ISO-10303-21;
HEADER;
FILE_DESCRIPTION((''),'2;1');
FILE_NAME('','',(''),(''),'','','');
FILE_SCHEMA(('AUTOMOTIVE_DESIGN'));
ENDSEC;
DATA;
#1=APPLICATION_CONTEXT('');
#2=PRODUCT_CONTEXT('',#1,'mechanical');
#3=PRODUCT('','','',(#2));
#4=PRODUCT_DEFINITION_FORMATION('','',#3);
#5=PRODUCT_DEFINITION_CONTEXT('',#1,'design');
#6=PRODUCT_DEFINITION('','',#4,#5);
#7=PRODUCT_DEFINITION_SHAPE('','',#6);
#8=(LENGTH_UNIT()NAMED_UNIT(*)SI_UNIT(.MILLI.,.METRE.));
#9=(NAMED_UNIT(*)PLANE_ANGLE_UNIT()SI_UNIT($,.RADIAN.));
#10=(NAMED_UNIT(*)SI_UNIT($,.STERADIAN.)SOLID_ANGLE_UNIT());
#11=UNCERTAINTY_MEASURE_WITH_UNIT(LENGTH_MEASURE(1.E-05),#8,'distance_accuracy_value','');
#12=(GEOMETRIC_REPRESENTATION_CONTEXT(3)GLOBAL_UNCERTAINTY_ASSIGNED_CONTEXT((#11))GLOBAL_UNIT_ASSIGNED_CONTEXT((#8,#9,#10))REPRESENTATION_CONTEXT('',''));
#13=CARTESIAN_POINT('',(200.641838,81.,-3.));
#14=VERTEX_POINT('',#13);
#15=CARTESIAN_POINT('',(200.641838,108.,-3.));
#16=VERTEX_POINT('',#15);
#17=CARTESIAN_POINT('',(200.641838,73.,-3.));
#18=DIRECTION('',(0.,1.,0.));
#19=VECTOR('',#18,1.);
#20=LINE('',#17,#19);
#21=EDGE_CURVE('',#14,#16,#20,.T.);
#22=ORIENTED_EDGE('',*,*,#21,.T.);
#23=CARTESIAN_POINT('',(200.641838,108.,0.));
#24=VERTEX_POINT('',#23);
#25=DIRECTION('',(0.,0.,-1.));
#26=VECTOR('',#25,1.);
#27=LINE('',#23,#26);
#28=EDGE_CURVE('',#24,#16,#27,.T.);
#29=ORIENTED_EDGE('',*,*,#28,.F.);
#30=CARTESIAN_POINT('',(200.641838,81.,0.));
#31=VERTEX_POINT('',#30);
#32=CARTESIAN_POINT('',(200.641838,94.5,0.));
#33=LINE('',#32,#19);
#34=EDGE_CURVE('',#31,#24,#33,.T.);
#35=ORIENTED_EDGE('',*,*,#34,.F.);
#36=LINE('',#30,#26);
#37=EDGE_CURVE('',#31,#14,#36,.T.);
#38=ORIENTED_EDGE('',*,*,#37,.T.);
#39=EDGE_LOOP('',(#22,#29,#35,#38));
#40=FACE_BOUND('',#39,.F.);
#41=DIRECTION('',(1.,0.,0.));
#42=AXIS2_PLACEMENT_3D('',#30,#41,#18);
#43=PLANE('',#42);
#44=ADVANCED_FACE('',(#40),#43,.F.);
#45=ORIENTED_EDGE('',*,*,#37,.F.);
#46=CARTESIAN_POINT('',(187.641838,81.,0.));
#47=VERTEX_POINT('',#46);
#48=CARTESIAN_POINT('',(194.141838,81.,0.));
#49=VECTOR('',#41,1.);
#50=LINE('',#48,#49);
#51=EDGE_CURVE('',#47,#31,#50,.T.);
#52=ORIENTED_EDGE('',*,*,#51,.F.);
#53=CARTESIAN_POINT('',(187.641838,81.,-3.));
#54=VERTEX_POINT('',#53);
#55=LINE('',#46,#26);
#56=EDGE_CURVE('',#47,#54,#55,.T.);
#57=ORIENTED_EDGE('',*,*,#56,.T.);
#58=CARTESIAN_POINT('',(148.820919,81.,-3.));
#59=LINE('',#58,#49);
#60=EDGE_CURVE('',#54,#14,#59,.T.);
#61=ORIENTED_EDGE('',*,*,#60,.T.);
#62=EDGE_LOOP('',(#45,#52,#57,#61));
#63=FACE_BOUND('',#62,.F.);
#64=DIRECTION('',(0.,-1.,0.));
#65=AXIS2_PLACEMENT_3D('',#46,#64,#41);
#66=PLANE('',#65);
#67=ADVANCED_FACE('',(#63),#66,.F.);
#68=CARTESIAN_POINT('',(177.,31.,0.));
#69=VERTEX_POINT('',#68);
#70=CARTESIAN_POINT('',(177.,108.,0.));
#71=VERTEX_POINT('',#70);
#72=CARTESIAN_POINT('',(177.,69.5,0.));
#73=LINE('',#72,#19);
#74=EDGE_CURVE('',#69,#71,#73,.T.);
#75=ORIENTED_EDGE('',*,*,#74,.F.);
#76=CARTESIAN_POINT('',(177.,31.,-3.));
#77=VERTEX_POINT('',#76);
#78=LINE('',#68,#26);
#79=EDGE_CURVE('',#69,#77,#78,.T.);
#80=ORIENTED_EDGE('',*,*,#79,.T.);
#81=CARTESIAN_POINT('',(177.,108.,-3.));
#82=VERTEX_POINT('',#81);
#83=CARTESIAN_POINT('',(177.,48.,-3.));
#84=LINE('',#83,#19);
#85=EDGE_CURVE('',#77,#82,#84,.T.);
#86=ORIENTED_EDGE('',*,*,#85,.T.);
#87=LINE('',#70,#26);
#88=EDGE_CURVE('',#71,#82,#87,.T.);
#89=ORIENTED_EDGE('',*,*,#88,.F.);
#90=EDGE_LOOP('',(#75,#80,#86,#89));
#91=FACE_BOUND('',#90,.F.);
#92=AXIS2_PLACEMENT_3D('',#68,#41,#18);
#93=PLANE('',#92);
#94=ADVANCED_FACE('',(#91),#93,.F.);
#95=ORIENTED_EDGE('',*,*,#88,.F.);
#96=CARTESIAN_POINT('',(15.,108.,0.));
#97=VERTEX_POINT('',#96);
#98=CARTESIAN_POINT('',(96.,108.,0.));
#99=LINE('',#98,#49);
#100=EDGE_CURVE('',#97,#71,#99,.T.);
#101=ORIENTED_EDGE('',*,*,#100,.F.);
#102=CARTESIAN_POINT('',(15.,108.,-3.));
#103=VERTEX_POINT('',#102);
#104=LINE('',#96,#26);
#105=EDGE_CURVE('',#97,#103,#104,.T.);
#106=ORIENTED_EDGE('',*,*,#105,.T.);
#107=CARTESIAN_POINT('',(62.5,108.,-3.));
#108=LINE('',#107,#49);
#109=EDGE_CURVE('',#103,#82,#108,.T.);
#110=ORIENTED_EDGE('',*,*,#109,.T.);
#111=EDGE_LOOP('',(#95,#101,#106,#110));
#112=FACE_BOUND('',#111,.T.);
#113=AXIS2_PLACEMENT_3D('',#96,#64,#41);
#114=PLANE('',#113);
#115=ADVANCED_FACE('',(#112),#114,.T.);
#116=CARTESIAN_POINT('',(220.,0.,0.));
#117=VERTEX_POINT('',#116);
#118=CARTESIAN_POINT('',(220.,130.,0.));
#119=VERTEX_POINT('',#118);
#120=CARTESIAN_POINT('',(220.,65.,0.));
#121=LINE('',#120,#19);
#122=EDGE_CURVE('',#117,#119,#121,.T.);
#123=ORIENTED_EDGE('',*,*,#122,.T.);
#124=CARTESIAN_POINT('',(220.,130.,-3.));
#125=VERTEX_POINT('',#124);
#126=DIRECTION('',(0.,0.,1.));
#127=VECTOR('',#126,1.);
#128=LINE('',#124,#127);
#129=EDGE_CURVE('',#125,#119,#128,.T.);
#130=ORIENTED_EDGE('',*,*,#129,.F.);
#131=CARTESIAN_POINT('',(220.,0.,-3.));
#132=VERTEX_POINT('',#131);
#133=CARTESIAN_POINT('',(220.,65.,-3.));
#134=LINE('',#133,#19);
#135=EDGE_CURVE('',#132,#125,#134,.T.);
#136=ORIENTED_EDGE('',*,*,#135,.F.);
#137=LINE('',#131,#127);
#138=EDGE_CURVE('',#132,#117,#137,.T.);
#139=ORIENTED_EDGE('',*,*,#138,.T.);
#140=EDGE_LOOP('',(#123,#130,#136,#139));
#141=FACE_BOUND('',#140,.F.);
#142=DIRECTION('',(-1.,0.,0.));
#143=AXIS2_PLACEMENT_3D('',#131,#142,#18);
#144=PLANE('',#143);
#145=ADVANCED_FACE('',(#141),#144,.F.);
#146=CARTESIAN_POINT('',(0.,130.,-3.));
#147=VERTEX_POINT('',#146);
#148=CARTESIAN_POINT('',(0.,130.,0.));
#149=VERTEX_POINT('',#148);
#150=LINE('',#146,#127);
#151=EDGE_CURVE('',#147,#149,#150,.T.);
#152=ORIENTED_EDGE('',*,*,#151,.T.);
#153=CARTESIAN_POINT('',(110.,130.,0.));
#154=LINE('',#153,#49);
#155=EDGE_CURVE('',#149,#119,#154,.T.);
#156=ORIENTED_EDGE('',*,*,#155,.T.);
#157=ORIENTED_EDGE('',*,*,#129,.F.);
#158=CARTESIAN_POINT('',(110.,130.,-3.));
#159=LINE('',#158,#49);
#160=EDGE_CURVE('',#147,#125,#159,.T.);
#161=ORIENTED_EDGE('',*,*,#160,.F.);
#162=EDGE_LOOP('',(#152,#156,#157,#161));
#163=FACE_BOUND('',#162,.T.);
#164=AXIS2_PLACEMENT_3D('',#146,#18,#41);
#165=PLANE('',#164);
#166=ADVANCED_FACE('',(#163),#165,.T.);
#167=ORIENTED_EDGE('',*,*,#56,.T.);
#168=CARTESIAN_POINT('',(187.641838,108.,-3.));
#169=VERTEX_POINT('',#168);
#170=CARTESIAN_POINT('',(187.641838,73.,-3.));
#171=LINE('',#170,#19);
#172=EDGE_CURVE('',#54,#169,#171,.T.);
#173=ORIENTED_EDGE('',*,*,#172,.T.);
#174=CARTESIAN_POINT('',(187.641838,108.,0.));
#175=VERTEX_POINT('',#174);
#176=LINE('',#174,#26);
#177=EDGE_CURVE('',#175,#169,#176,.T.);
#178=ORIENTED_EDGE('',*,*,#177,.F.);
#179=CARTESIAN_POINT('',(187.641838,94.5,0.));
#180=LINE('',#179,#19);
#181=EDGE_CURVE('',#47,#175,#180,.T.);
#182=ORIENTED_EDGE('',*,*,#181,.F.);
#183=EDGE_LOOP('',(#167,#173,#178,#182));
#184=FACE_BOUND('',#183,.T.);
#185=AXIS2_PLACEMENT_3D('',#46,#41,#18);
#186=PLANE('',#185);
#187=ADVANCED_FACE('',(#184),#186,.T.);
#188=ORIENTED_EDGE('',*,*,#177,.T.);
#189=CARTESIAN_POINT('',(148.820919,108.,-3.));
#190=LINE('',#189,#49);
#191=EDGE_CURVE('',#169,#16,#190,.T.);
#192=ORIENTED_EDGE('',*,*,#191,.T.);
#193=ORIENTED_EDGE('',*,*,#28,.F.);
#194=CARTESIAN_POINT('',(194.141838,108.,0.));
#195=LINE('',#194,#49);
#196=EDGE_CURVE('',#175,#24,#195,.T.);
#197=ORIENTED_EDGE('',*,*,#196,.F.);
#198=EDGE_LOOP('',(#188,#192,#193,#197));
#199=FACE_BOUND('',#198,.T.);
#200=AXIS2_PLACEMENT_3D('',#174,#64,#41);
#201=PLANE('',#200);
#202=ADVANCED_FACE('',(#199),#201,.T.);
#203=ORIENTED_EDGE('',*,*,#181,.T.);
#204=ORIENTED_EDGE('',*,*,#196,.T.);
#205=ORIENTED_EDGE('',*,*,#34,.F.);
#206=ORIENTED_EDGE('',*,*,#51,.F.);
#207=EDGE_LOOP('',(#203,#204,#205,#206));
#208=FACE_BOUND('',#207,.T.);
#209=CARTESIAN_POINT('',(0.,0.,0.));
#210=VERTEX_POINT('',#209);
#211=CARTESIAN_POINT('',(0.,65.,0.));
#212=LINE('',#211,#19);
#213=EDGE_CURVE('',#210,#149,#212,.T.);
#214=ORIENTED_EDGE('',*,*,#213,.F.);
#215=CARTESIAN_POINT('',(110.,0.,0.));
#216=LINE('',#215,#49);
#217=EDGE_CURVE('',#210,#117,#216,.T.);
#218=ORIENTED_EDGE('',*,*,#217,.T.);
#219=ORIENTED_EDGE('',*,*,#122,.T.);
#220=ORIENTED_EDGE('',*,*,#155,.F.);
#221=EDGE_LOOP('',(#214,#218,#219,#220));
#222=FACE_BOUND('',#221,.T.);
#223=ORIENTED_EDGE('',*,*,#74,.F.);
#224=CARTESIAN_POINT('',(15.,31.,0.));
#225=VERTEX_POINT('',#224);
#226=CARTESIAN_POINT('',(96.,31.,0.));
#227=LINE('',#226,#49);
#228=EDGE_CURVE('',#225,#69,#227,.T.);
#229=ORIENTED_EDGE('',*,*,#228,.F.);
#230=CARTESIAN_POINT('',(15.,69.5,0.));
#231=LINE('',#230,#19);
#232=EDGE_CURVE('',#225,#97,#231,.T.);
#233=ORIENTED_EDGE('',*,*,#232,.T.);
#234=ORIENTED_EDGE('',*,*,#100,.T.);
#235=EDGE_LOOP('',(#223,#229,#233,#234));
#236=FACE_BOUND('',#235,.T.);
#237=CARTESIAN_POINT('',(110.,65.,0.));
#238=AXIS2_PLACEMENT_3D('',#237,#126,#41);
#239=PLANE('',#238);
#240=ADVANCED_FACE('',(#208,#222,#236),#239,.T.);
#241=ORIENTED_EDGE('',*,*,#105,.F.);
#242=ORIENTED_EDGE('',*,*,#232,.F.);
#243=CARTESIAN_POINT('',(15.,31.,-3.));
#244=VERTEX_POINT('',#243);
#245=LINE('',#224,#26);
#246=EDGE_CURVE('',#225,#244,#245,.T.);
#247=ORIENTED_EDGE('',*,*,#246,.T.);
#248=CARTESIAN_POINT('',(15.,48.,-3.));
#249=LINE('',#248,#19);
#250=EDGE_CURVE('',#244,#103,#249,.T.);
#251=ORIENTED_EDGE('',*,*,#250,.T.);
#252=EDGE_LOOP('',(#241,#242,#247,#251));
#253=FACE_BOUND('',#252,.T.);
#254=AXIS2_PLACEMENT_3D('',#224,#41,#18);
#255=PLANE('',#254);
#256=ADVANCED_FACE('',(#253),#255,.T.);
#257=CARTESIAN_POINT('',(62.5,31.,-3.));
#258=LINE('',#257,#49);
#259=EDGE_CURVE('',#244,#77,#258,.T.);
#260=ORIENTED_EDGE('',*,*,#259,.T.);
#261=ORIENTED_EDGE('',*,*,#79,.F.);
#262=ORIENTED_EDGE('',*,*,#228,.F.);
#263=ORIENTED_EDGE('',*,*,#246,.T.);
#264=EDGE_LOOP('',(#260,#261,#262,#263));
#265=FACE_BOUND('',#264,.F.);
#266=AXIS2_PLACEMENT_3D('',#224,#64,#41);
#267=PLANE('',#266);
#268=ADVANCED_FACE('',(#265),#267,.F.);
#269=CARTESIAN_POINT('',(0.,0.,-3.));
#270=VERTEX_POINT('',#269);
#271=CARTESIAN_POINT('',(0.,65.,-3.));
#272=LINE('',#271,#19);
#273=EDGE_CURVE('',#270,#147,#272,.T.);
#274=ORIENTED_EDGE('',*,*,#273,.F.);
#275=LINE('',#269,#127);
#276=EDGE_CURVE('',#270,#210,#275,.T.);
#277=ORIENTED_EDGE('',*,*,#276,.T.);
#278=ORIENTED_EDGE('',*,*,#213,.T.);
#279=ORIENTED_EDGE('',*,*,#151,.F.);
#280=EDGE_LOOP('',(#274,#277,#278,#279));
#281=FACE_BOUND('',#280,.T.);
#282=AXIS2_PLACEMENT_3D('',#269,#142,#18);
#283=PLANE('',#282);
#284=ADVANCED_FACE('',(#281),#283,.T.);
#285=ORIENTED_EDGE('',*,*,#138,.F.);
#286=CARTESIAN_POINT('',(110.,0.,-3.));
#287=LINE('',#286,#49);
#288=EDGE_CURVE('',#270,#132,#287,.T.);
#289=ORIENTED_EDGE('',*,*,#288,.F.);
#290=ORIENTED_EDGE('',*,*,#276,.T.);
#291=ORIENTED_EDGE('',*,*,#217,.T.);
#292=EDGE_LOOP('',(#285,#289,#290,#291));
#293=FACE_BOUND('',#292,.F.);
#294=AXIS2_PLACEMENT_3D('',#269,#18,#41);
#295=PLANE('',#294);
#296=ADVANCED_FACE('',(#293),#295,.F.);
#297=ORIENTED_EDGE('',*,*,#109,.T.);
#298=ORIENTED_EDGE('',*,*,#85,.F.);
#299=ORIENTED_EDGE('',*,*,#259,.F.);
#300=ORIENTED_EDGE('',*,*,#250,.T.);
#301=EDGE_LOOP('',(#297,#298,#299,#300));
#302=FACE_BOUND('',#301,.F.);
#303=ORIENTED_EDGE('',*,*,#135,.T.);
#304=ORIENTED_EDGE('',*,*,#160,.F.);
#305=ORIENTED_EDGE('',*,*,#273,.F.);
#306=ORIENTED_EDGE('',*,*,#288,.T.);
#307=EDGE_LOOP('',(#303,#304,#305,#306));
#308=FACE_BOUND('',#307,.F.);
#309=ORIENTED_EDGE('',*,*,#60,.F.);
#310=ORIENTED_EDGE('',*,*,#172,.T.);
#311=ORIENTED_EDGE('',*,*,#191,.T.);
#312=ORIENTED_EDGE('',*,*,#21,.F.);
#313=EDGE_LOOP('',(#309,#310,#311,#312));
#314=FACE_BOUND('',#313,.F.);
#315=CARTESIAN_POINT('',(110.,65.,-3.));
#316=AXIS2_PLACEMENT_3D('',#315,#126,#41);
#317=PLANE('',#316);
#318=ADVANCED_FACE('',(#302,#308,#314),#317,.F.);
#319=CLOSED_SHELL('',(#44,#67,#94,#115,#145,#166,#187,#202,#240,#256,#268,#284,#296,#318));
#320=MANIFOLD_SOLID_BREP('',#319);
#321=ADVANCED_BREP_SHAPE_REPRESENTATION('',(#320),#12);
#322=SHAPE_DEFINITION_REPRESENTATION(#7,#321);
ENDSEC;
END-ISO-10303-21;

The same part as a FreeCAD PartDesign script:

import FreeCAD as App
import Part
import Sketcher
Q = App.Units.Quantity

doc = App.newDocument("Part")
body = doc.addObject("PartDesign::Body", "Body")

# Sketch on XY plane
sketch1 = body.newObject("Sketcher::SketchObject", "Sketch")
sketch1.AttachmentSupport = (doc.getObject("XY_Plane"), [""])
sketch1.MapMode = "FlatFace"
sketch1.addGeometry(Part.LineSegment(App.Vector(-110, 65, 0), App.Vector(-110, -65, 0)), False)
sketch1.addGeometry(Part.LineSegment(App.Vector(-110, -65, 0), App.Vector(110, -65, 0)), False)
sketch1.addGeometry(Part.LineSegment(App.Vector(110, -65, 0), App.Vector(110, 65, 0)), False)
sketch1.addGeometry(Part.LineSegment(App.Vector(110, 65, 0), App.Vector(-110, 65, 0)), False)
sketch1.addConstraint(Sketcher.Constraint("Coincident", 0, 2, 1, 1))
sketch1.addConstraint(Sketcher.Constraint("Coincident", 1, 2, 2, 1))
sketch1.addConstraint(Sketcher.Constraint("Coincident", 2, 2, 3, 1))
sketch1.addConstraint(Sketcher.Constraint("Coincident", 3, 2, 0, 1))
sketch1.addConstraint(Sketcher.Constraint("Vertical", 0))
sketch1.addConstraint(Sketcher.Constraint("Horizontal", 1))
sketch1.addConstraint(Sketcher.Constraint("Vertical", 2))
sketch1.addConstraint(Sketcher.Constraint("Horizontal", 3))
sketch1.addConstraint(Sketcher.Constraint("Symmetric", 0, 2, 2, 2, -1, 1))
sketch1.addConstraint(Sketcher.Constraint("DistanceX", 1, 1, 1, 2, Q("220 mm")))
sketch1.addConstraint(Sketcher.Constraint("DistanceY", 0, 2, 0, 1, Q("130 mm")))
pad1 = body.newObject("PartDesign::Pad", "Pad")
pad1.Profile = sketch1
pad1.Length = 3

# Sketch on XY plane
sketch2 = body.newObject("Sketcher::SketchObject", "Sketch001")
sketch2.AttachmentSupport = (doc.getObject("XY_Plane"), [""])
sketch2.MapMode = "FlatFace"
sketch2.AttachmentOffset = App.Placement(App.Vector(0, 0, 3), App.Rotation())
sketch2.addGeometry(Part.LineSegment(App.Vector(-95, 43, 0), App.Vector(-95, -34, 0)), False)
sketch2.addGeometry(Part.LineSegment(App.Vector(-95, -34, 0), App.Vector(67, -34, 0)), False)
sketch2.addGeometry(Part.LineSegment(App.Vector(67, -34, 0), App.Vector(67, 43, 0)), False)
sketch2.addGeometry(Part.LineSegment(App.Vector(67, 43, 0), App.Vector(-95, 43, 0)), False)
sketch2.addConstraint(Sketcher.Constraint("Coincident", 0, 2, 1, 1))
sketch2.addConstraint(Sketcher.Constraint("Coincident", 1, 2, 2, 1))
sketch2.addConstraint(Sketcher.Constraint("Coincident", 2, 2, 3, 1))
sketch2.addConstraint(Sketcher.Constraint("Coincident", 3, 2, 0, 1))
sketch2.addConstraint(Sketcher.Constraint("Vertical", 0))
sketch2.addConstraint(Sketcher.Constraint("Horizontal", 1))
sketch2.addConstraint(Sketcher.Constraint("Vertical", 2))
sketch2.addConstraint(Sketcher.Constraint("Horizontal", 3))
sketch2.addConstraint(Sketcher.Constraint("DistanceX", 1, 1, 1, 2, Q("162 mm")))
sketch2.addConstraint(Sketcher.Constraint("DistanceY", 0, 2, 0, 1, Q("77 mm")))
sketch2.addConstraint(Sketcher.Constraint("DistanceX", 0, 2, -1, 1, Q("95 mm")))
sketch2.addConstraint(Sketcher.Constraint("DistanceY", 0, 2, -1, 1, Q("34 mm")))
pocket1 = body.newObject("PartDesign::Pocket", "Pocket")
pocket1.Profile = sketch2
pocket1.Type = "ThroughAll"

# Sketch on XY plane
sketch3 = body.newObject("Sketcher::SketchObject", "Sketch002")
sketch3.AttachmentSupport = (doc.getObject("XY_Plane"), [""])
sketch3.MapMode = "FlatFace"
sketch3.AttachmentOffset = App.Placement(App.Vector(0, 0, 3), App.Rotation())
sketch3.addGeometry(Part.LineSegment(App.Vector(78, 43, 0), App.Vector(78, 16, 0)), False)
sketch3.addGeometry(Part.LineSegment(App.Vector(78, 16, 0), App.Vector(91, 16, 0)), False)
sketch3.addGeometry(Part.LineSegment(App.Vector(91, 16, 0), App.Vector(91, 43, 0)), False)
sketch3.addGeometry(Part.LineSegment(App.Vector(91, 43, 0), App.Vector(78, 43, 0)), False)
sketch3.addConstraint(Sketcher.Constraint("Coincident", 0, 2, 1, 1))
sketch3.addConstraint(Sketcher.Constraint("Coincident", 1, 2, 2, 1))
sketch3.addConstraint(Sketcher.Constraint("Coincident", 2, 2, 3, 1))
sketch3.addConstraint(Sketcher.Constraint("Coincident", 3, 2, 0, 1))
sketch3.addConstraint(Sketcher.Constraint("Vertical", 0))
sketch3.addConstraint(Sketcher.Constraint("Horizontal", 1))
sketch3.addConstraint(Sketcher.Constraint("Vertical", 2))
sketch3.addConstraint(Sketcher.Constraint("Horizontal", 3))
sketch3.addConstraint(Sketcher.Constraint("DistanceX", 1, 1, 1, 2, Q("13 mm")))
sketch3.addConstraint(Sketcher.Constraint("DistanceY", 0, 2, 0, 1, Q("27 mm")))
sketch3.addConstraint(Sketcher.Constraint("DistanceY", -1, 1, 0, 2, Q("16 mm")))
sketch3.addConstraint(Sketcher.Constraint("DistanceX", -1, 1, 0, 2, Q("77.641838 mm")))
pocket2 = body.newObject("PartDesign::Pocket", "Pocket001")
pocket2.Profile = sketch3
pocket2.Type = "ThroughAll"
body2 = doc.addObject("PartDesign::Body", "Body001")
doc.recompute()

body.Placement = App.Placement(App.Vector(0, 0, 0), App.Rotation(App.Vector(1, 0, 0), 340))
boolean = body2.newObject("PartDesign::Boolean", "Boolean")
boolean.Type = "Fuse"
boolean.addObjects([body])
body3 = doc.addObject("PartDesign::Body", "Body002")
doc.recompute()

body2.Placement = App.Placement(App.Vector(110, 65, -3), App.Rotation(App.Vector(-1, 0, 0), 340))
boolean2 = body3.newObject("PartDesign::Boolean", "Boolean001")
boolean2.Type = "Fuse"
boolean2.addObjects([body2])

doc.recompute()
